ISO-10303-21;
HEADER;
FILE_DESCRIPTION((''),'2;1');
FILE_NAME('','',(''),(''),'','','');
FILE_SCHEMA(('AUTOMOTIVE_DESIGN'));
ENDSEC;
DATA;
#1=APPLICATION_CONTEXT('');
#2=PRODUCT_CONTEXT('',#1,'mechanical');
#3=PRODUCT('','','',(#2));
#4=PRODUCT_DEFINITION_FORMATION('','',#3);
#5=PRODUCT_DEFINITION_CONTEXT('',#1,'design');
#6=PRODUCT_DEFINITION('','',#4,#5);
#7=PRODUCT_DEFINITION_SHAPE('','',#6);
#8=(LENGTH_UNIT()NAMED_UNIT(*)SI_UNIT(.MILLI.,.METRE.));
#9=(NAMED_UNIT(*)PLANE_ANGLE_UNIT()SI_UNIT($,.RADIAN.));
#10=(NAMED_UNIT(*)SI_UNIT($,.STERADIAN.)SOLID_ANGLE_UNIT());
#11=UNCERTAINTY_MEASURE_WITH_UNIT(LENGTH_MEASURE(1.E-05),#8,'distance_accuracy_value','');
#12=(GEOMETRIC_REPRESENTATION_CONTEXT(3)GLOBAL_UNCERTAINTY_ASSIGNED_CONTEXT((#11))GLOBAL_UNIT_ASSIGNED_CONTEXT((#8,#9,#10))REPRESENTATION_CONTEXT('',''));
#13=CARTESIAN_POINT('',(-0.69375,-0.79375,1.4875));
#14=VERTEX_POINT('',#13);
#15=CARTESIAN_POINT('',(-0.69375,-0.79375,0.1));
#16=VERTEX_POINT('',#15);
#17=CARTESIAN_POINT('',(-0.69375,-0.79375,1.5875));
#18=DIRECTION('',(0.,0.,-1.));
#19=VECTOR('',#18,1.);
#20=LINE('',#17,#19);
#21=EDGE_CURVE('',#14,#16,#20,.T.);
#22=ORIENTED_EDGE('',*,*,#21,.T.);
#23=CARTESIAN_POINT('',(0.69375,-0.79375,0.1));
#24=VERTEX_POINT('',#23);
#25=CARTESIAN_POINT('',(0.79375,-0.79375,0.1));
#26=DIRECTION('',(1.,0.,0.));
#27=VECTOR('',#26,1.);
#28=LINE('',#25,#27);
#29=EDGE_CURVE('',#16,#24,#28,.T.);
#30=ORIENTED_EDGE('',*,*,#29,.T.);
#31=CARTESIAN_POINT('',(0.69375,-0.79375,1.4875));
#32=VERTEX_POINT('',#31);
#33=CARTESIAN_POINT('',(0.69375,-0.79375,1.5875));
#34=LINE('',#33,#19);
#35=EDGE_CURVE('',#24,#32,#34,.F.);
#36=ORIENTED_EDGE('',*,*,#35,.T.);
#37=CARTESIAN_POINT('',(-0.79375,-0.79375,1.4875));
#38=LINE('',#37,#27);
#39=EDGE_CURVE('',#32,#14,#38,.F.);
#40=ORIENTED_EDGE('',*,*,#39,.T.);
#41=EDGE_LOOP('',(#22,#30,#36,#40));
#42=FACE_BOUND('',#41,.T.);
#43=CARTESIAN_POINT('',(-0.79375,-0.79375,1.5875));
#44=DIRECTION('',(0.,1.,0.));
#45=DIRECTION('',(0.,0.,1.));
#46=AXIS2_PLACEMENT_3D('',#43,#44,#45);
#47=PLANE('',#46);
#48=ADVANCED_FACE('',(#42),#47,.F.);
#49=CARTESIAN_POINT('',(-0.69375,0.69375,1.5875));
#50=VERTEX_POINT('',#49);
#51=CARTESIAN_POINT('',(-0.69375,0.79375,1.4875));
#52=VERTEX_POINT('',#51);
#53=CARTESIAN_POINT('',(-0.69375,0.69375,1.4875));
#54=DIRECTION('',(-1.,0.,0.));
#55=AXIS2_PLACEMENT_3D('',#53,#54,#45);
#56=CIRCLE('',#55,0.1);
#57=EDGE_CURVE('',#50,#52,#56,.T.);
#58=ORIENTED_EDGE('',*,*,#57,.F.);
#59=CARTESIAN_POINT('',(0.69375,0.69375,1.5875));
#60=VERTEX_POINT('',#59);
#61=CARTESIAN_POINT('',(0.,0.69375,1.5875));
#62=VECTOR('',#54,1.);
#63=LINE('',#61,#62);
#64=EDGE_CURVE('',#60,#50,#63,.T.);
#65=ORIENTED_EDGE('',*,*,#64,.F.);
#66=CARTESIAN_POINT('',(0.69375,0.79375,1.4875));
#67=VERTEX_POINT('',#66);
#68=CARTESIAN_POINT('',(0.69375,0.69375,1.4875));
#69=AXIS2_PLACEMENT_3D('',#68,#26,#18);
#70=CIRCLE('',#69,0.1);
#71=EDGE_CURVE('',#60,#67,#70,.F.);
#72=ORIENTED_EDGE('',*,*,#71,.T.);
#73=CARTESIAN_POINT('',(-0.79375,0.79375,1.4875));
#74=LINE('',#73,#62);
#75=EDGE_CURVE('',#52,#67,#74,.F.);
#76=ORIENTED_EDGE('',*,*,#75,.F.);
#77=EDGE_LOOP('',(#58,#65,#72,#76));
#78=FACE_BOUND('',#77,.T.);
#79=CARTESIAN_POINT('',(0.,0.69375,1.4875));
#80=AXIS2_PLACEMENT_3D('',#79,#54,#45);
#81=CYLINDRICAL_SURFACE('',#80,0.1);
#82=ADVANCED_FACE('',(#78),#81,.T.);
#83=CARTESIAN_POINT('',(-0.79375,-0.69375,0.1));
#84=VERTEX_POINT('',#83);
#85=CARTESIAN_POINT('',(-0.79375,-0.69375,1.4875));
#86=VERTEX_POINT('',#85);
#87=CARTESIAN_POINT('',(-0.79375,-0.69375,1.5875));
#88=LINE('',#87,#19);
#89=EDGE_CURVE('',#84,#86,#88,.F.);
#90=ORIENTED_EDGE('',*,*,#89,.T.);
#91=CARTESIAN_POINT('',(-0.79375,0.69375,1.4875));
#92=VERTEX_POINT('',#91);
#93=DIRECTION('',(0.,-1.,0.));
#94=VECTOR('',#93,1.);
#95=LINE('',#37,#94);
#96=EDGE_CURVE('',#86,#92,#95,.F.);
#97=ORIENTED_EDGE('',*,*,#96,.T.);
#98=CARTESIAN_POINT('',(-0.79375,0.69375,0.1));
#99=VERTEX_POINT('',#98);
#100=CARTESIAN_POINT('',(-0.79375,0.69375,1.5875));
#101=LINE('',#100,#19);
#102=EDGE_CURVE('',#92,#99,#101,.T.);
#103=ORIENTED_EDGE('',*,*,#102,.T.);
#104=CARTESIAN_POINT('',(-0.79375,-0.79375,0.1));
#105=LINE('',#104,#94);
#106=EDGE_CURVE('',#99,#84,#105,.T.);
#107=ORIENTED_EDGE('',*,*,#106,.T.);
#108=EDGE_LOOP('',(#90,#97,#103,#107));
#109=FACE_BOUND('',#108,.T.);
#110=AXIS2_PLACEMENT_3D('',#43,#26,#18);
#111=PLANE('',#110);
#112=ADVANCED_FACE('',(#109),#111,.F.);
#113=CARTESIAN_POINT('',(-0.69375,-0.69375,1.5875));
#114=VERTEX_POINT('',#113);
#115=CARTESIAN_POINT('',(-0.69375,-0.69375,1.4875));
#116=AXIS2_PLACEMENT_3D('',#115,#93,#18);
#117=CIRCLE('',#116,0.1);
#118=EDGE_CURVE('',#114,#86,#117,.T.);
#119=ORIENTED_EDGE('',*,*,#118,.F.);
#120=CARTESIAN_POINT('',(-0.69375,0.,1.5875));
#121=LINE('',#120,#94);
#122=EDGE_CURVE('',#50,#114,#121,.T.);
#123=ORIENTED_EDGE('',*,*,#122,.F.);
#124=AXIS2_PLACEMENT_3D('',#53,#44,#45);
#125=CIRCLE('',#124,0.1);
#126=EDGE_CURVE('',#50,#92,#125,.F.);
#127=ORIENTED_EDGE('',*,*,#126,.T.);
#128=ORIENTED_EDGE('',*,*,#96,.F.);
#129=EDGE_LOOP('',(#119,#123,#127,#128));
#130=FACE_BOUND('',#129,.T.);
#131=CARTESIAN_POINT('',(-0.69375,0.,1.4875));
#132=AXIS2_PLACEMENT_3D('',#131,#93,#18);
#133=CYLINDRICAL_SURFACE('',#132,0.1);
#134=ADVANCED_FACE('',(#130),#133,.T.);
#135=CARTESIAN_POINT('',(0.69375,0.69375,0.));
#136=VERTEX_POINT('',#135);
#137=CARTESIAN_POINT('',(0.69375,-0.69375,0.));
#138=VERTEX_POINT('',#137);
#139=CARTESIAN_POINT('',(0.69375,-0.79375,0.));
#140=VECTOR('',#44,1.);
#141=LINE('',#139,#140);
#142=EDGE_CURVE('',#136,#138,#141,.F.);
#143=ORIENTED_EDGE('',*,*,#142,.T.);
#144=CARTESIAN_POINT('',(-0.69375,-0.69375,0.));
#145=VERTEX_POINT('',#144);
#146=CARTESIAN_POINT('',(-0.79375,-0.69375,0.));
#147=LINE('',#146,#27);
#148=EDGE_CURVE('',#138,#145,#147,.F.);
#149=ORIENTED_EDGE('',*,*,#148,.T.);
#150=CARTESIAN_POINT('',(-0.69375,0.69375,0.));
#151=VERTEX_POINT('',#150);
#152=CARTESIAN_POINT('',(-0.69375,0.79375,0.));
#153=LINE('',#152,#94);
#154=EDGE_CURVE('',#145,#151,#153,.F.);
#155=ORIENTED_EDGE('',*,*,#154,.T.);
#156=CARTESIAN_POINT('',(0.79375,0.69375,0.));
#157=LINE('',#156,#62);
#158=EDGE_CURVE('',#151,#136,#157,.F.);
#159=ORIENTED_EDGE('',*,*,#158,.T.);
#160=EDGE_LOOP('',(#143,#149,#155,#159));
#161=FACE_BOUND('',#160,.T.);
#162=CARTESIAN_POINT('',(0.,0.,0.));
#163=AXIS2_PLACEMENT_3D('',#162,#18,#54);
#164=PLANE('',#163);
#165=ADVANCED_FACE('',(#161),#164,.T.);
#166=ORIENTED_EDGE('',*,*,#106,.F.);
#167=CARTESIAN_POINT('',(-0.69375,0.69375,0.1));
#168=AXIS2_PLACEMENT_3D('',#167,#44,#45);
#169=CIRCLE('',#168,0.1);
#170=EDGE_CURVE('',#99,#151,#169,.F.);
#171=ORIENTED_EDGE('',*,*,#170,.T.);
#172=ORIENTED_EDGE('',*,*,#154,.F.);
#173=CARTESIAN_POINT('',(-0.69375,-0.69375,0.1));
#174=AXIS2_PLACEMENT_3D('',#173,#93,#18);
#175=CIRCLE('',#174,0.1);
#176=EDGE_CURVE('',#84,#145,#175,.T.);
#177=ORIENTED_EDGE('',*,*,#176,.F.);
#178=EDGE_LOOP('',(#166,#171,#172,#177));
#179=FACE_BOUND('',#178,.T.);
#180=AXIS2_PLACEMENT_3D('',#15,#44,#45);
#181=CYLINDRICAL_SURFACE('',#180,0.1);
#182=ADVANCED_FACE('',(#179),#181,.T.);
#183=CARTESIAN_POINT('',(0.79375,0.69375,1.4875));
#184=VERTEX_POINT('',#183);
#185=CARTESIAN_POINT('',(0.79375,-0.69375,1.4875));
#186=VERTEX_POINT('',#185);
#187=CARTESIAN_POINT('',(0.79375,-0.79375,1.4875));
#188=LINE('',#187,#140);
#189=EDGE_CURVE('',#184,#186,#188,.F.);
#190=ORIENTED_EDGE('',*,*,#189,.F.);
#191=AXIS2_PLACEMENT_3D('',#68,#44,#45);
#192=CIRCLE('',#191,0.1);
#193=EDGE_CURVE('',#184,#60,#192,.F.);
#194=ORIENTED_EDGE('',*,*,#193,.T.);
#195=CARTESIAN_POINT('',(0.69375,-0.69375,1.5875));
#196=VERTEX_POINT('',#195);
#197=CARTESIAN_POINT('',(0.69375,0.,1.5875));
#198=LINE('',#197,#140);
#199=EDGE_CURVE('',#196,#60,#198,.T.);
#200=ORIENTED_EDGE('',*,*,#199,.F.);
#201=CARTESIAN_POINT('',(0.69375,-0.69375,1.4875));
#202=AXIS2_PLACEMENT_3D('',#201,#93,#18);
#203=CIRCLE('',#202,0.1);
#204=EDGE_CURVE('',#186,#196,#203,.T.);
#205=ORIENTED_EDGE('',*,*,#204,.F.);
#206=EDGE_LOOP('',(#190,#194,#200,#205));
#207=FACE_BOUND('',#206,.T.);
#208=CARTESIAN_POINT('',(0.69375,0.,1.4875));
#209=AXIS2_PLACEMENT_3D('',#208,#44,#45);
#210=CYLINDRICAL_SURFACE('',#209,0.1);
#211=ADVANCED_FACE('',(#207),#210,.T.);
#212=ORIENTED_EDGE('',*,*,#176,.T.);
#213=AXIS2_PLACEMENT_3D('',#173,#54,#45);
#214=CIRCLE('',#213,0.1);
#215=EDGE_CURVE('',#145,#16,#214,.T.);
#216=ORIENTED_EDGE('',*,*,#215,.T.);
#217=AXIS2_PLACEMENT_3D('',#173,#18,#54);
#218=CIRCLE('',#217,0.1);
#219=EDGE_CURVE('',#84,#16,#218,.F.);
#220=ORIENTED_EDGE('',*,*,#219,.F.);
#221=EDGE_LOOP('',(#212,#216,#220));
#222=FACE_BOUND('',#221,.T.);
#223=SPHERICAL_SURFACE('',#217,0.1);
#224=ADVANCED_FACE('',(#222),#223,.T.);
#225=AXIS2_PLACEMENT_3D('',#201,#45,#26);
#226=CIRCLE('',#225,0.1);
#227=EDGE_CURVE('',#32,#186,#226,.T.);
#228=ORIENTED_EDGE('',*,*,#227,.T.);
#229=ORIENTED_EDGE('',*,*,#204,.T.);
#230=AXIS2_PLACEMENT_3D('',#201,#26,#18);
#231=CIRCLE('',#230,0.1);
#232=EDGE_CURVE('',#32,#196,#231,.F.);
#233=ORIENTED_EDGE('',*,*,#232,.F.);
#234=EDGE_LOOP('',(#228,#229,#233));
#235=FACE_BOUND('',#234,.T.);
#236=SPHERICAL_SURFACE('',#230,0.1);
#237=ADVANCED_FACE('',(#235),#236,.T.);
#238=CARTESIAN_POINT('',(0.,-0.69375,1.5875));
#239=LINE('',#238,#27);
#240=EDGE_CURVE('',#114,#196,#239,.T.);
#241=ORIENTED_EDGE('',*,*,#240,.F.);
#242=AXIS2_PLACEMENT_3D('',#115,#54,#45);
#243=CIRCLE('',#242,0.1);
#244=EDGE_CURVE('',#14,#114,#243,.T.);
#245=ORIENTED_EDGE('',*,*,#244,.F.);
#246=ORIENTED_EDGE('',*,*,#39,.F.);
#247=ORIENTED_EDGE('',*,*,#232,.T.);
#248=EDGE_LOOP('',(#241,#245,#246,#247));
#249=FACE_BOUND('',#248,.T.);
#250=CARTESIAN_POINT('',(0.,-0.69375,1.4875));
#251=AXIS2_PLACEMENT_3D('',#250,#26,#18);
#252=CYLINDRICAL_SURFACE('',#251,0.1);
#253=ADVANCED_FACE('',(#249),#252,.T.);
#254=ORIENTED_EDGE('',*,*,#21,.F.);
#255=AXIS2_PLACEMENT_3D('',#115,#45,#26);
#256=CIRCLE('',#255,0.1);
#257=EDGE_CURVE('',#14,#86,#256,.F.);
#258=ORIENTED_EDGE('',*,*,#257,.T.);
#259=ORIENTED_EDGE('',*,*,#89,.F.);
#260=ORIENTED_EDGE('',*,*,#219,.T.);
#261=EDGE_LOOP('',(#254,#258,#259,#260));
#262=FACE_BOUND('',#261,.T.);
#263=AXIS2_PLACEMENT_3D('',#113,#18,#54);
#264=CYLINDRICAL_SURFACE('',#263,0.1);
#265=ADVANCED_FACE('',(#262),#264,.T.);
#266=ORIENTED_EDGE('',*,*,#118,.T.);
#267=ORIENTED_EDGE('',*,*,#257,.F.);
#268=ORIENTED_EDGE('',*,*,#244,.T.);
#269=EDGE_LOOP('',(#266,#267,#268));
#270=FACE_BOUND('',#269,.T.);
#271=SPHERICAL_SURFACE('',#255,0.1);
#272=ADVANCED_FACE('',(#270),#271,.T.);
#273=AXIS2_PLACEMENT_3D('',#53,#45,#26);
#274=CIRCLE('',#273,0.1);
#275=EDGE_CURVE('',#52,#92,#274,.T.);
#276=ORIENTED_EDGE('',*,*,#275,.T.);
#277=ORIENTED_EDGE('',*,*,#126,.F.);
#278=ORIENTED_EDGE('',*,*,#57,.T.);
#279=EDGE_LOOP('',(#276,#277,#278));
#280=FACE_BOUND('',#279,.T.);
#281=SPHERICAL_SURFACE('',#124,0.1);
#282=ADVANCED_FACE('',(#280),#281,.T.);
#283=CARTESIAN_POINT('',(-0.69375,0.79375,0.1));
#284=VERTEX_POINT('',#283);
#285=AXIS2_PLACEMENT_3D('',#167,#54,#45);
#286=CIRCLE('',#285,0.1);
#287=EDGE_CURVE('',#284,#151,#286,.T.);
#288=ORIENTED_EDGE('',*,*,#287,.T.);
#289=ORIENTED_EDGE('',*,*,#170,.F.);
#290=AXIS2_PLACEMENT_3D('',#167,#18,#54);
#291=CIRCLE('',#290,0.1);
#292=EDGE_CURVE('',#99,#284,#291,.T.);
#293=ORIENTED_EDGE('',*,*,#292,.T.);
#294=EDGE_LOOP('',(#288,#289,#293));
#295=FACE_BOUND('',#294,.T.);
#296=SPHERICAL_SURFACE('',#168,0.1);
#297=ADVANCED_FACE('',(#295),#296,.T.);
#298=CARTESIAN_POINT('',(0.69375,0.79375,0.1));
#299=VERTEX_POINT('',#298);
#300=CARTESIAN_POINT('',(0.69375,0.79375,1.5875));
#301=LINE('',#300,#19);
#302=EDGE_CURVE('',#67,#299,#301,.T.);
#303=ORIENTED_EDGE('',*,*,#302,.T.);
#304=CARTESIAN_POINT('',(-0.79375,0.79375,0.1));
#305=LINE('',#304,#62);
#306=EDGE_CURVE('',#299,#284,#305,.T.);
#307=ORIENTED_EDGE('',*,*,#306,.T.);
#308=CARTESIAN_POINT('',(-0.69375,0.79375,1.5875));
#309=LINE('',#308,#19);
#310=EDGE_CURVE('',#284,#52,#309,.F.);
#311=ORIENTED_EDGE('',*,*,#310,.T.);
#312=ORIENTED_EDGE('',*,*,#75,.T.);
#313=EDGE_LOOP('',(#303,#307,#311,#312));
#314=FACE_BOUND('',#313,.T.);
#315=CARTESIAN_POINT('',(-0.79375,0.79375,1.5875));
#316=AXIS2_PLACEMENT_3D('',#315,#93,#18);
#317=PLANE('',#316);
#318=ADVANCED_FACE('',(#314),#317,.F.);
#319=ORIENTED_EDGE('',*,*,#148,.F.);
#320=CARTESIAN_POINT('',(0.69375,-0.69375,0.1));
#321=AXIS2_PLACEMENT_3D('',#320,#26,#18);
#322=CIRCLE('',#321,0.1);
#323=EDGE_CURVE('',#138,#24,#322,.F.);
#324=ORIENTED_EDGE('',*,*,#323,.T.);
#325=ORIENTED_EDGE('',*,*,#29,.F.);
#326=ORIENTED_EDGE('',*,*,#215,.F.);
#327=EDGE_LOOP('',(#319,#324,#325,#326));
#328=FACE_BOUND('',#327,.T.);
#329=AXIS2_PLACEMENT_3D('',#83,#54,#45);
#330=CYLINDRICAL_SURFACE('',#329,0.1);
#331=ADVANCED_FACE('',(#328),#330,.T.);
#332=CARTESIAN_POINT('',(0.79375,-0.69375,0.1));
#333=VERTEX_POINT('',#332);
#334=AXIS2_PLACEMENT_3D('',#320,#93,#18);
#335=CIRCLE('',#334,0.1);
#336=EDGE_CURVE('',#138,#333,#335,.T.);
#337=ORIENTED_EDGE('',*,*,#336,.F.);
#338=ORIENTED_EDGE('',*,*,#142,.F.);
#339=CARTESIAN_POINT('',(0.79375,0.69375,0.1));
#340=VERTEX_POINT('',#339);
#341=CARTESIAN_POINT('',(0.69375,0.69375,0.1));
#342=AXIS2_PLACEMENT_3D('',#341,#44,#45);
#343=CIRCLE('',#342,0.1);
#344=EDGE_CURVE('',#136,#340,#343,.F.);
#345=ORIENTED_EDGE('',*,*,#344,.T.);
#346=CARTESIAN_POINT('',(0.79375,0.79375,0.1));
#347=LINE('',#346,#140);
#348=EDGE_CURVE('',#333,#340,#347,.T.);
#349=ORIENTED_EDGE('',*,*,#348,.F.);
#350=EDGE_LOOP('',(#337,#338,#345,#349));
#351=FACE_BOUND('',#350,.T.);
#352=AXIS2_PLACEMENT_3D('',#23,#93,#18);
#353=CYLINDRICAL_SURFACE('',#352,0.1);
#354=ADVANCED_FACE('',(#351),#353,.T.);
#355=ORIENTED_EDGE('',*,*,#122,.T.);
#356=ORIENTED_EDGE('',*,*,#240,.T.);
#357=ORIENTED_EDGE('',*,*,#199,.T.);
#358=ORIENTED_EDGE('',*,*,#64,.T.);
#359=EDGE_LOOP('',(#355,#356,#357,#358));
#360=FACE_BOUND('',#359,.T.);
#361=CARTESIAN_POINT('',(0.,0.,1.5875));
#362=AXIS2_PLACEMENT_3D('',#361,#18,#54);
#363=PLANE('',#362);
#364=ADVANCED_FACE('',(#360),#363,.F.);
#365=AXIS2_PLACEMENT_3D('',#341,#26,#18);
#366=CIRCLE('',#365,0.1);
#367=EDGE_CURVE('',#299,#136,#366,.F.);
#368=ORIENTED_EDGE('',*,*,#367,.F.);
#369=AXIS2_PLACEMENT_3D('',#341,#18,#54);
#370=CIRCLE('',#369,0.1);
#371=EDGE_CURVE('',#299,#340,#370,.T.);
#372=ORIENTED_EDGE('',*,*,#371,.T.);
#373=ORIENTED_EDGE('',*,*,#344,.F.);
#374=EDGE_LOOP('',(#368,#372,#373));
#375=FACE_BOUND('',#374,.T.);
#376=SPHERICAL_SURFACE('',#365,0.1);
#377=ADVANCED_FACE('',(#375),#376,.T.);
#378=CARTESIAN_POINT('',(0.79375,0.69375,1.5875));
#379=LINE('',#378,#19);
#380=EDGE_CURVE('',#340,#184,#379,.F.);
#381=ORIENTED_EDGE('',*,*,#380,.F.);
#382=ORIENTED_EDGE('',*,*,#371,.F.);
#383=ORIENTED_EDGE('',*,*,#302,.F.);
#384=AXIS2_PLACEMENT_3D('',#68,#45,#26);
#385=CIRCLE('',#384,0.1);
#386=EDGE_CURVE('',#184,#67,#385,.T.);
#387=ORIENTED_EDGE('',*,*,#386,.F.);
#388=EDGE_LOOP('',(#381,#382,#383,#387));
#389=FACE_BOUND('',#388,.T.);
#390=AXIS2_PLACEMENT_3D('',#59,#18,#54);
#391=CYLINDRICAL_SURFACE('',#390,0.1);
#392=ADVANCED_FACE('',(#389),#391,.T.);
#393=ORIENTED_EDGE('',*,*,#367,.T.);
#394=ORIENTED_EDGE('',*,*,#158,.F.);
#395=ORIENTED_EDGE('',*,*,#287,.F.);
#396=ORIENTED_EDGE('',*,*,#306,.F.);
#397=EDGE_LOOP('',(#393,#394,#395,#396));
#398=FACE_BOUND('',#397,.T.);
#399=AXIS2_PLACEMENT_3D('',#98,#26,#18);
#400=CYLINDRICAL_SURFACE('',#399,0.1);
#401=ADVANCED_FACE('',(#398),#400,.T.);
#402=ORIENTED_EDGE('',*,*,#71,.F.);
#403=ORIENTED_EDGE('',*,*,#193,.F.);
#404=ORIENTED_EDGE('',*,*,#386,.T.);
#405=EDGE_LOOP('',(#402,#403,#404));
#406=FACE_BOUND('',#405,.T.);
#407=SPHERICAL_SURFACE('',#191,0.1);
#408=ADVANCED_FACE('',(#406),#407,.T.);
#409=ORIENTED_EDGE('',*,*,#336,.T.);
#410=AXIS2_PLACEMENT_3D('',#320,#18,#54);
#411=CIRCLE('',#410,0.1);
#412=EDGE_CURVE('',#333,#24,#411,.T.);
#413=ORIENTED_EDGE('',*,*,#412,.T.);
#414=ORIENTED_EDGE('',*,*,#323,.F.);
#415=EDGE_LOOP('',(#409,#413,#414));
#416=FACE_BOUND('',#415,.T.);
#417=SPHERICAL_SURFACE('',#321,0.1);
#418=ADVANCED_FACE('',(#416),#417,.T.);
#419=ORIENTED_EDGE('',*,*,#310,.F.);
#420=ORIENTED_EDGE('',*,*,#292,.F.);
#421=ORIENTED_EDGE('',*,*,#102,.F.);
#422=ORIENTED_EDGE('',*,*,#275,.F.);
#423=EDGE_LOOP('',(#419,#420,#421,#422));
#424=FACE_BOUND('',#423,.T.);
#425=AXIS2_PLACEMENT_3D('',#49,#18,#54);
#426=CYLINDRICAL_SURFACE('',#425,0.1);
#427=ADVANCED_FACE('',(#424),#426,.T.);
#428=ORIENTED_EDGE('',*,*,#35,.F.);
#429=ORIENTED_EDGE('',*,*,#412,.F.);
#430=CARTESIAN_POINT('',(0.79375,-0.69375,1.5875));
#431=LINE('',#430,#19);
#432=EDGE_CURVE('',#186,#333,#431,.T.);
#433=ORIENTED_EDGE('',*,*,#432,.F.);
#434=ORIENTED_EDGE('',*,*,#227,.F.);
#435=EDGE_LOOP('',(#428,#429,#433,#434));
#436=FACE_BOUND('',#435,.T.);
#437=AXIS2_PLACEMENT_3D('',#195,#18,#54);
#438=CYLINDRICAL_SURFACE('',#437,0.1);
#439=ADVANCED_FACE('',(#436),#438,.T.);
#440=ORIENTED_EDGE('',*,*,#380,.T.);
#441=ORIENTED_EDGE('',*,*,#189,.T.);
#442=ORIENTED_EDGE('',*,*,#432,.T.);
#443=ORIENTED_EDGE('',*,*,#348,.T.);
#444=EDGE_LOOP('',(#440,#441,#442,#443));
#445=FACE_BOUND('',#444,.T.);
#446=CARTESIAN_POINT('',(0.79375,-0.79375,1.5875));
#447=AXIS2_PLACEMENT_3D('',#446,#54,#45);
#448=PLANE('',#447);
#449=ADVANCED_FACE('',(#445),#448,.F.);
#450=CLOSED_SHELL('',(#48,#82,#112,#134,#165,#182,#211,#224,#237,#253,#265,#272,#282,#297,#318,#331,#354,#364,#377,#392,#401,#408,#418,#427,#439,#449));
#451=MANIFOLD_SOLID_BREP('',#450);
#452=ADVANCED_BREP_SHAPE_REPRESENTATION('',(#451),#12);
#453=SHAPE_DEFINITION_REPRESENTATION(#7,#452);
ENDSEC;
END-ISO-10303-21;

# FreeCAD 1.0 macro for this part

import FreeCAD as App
import Part
import Sketcher
Q = App.Units.Quantity


def add_polygon(sketch, points):
    """Adds a closed chain of lines whose ends are joined by coincident constraints."""
    first, n = sketch.GeometryCount, len(points)
    for a, b in zip(points, points[1:] + points[:1]):
        sketch.addGeometry(Part.LineSegment(App.Vector(*a, 0), App.Vector(*b, 0)), False)
    for i in range(n):
        sketch.addConstraint(Sketcher.Constraint("Coincident", first + i, 2, first + (i + 1) % n, 1))

doc = App.newDocument("Part")
body = doc.addObject("PartDesign::Body", "Body")

sketch1 = body.newObject("Sketcher::SketchObject", "Sketch")
sketch1.AttachmentSupport = (doc.getObject("XY_Plane"), [""])
sketch1.MapMode = "FlatFace"
add_polygon(sketch1, [(-0.8, 0.8), (-0.8, -0.8), (0.8, -0.8), (0.8, 0.8)])
sketch1.addConstraint(Sketcher.Constraint("Vertical", 0))
sketch1.addConstraint(Sketcher.Constraint("Horizontal", 1))
sketch1.addConstraint(Sketcher.Constraint("Vertical", 2))
sketch1.addConstraint(Sketcher.Constraint("Horizontal", 3))
sketch1.addConstraint(Sketcher.Constraint("Symmetric", 0, 2, 2, 2, -1, 1))
sketch1.addConstraint(Sketcher.Constraint("Equal", 3, 0))
sketch1.addConstraint(Sketcher.Constraint("DistanceX", 1, 1, 1, 2, Q("1.5875 mm")))
pad1 = body.newObject("PartDesign::Pad", "Pad")
pad1.Profile = sketch1
pad1.Length = 1.5875
doc.recompute()

fillet = body.newObject("PartDesign::Fillet", "Fillet")
fillet.Base = (pad1, ["Edge1"])
fillet.UseAllEdges = True
fillet.Radius = 0.1

doc.recompute()
